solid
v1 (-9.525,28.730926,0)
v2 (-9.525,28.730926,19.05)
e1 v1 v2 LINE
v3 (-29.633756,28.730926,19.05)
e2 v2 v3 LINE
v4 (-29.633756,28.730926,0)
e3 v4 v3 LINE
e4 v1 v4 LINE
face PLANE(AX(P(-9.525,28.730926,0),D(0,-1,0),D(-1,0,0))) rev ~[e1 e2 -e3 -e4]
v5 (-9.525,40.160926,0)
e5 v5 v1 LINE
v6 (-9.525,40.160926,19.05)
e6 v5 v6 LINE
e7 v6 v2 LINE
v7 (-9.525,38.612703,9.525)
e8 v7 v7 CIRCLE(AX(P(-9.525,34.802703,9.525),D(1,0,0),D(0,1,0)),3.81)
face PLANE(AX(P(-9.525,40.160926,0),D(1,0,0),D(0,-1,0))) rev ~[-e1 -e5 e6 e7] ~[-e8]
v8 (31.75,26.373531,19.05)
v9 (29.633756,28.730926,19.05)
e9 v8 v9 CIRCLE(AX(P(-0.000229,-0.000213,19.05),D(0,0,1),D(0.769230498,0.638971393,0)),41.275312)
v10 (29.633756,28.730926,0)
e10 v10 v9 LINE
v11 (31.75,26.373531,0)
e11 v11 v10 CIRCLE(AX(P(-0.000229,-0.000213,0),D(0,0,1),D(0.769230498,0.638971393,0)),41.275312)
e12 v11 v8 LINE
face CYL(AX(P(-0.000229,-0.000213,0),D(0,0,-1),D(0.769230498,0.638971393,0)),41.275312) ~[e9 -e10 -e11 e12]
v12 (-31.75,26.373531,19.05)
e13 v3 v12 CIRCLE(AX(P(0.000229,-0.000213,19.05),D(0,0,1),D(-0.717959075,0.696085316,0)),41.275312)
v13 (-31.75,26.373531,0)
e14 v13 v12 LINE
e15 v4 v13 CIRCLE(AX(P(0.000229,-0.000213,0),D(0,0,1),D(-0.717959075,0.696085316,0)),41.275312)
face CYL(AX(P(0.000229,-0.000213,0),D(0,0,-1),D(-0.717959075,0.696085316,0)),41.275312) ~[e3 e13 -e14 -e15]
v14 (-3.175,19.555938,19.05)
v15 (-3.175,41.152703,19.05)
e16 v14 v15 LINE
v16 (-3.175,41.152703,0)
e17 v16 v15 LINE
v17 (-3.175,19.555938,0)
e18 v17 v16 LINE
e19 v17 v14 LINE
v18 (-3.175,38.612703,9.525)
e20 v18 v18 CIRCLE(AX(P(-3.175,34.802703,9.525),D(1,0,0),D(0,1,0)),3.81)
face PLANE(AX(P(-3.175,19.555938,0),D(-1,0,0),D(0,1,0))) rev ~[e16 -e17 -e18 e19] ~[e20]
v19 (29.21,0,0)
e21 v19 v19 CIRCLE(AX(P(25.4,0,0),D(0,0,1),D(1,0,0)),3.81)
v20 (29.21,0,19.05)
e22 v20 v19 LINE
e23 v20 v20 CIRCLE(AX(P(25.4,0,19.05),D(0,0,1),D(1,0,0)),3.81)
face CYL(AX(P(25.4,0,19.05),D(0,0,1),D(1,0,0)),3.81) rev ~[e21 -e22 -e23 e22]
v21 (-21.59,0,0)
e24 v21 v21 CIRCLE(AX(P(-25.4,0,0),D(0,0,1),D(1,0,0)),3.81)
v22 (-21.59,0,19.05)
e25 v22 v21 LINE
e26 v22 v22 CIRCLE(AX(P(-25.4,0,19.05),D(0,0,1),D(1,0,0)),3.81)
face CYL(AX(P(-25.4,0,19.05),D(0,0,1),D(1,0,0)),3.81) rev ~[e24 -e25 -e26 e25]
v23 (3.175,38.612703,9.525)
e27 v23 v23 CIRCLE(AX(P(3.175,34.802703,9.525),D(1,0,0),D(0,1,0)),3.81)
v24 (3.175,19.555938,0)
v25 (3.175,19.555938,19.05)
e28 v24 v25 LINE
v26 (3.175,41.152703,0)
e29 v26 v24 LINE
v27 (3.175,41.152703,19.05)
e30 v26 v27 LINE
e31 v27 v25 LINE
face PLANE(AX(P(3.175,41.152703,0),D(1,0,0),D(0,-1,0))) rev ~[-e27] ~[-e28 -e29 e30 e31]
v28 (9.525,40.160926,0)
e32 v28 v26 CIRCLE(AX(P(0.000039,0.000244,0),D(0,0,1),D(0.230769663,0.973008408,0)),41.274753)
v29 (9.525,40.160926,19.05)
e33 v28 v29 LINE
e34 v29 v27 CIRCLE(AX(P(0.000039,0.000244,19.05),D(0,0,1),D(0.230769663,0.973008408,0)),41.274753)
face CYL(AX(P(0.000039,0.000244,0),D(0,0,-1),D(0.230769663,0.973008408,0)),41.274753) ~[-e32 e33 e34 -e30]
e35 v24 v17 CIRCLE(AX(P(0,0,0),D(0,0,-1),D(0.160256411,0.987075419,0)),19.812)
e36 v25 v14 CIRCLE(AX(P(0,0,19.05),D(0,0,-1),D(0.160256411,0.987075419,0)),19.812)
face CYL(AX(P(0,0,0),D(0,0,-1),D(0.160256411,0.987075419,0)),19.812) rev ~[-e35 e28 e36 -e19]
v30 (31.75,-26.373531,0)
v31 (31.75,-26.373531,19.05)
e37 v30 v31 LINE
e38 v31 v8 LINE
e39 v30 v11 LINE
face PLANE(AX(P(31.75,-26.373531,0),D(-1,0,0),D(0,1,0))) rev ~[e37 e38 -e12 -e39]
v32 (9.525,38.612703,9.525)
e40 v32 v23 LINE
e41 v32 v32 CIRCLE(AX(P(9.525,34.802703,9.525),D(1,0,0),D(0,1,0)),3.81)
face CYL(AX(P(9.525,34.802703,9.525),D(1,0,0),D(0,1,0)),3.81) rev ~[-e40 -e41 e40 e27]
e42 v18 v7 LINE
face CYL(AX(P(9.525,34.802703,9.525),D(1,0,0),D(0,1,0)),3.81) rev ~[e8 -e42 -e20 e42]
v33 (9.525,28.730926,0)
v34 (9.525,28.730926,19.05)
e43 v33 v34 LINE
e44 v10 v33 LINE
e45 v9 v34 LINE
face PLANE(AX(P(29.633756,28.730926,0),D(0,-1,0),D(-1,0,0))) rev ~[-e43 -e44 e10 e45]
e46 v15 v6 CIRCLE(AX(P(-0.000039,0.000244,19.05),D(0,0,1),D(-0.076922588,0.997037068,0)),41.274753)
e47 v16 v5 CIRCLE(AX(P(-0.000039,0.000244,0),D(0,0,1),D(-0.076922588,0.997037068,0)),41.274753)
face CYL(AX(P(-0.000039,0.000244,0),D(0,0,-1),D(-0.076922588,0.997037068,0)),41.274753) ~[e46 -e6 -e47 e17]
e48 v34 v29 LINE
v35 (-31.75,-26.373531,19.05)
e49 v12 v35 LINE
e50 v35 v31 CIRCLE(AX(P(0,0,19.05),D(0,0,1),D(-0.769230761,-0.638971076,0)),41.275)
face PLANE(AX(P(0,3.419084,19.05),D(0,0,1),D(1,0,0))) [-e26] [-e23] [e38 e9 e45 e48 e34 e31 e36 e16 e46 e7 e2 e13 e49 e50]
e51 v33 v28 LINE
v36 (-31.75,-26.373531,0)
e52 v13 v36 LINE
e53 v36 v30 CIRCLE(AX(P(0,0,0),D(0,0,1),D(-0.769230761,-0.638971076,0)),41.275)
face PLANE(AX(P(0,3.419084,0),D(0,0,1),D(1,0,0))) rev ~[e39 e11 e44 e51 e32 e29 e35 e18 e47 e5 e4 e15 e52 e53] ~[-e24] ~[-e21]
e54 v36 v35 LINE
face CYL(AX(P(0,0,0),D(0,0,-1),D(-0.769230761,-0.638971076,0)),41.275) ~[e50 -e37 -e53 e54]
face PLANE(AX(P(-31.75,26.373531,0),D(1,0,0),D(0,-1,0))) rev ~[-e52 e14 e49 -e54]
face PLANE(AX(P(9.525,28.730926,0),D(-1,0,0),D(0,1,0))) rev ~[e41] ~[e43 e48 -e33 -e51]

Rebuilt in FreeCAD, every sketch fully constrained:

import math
import FreeCAD as App
import Part
import Sketcher
from FreeCAD import Vector
Q = App.Units.Quantity

doc = App.newDocument("Part")
body = doc.addObject("PartDesign::Body", "Body")

# Sketch on XY plane
sketch1 = doc.addObject("Sketcher::SketchObject", "Sketch")
body.addObject(sketch1)
sketch1.AttachmentSupport = (doc.XY_Plane, [""])
sketch1.MapMode = "FlatFace"
sketch1.addGeometry([
    Part.LineSegment(Vector(-3.175, 19.555938, 0), Vector(-3.175, 41.152703, 0)),  # 0
    Part.ArcOfCircle(Part.Circle(Vector(-0.000039, 0.000244, 0), Vector(0, 0, 1), 41.274753), math.radians(94.411698), math.radians(103.342389)),  # 1
    Part.LineSegment(Vector(-9.525, 40.160926, 0), Vector(-9.525, 28.730926, 0)),  # 2
    Part.LineSegment(Vector(-9.525, 28.730926, 0), Vector(-29.633756, 28.730926, 0)),  # 3
    Part.ArcOfCircle(Part.Circle(Vector(0.000229, -0.000213, 0), Vector(0, 0, 1), 41.275312), math.radians(135.886234), math.radians(140.284838)),  # 4
    Part.LineSegment(Vector(-31.75, 26.373531, 0), Vector(-31.75, -26.373531, 0)),  # 5
    Part.ArcOfCircle(Part.Circle(Vector(0, 0, 0), Vector(0, 0, 1), 41.275), math.radians(-140.284862), math.radians(-39.715138)),  # 6
    Part.LineSegment(Vector(31.75, -26.373531, 0), Vector(31.75, 26.373531, 0)),  # 7
    Part.ArcOfCircle(Part.Circle(Vector(-0.000229, -0.000213, 0), Vector(0, 0, 1), 41.275312), math.radians(39.715162), math.radians(44.113766)),  # 8
    Part.LineSegment(Vector(29.633756, 28.730926, 0), Vector(9.525, 28.730926, 0)),  # 9
    Part.LineSegment(Vector(9.525, 28.730926, 0), Vector(9.525, 40.160926, 0)),  # 10
    Part.ArcOfCircle(Part.Circle(Vector(0.000039, 0.000244, 0), Vector(0, 0, 1), 41.274753), math.radians(76.657611), math.radians(85.588302)),  # 11
    Part.LineSegment(Vector(3.175, 41.152703, 0), Vector(3.175, 19.555938, 0)),  # 12
    Part.ArcOfCircle(Part.Circle(Vector(0, 0, 0), Vector(0, 0, 1), 19.812), math.radians(99.22178), math.radians(440.77822)),  # 13
], False)
sketch1.addConstraint([
    Sketcher.Constraint("Coincident", 0, 2, 1, 1),
    Sketcher.Constraint("Coincident", 1, 2, 2, 1),
    Sketcher.Constraint("Coincident", 2, 2, 3, 1),
    Sketcher.Constraint("Coincident", 3, 2, 4, 1),
    Sketcher.Constraint("Coincident", 4, 2, 5, 1),
    Sketcher.Constraint("Coincident", 5, 2, 6, 1),
    Sketcher.Constraint("Coincident", 6, 2, 7, 1),
    Sketcher.Constraint("Coincident", 7, 2, 8, 1),
    Sketcher.Constraint("Coincident", 8, 2, 9, 1),
    Sketcher.Constraint("Coincident", 9, 2, 10, 1),
    Sketcher.Constraint("Coincident", 10, 2, 11, 1),
    Sketcher.Constraint("Coincident", 11, 2, 12, 1),
    Sketcher.Constraint("Coincident", 12, 2, 13, 2),
    Sketcher.Constraint("Coincident", 13, 1, 0, 1),
    Sketcher.Constraint("Vertical", 0),
    Sketcher.Constraint("Vertical", 2),
    Sketcher.Constraint("Horizontal", 3),
    Sketcher.Constraint("Vertical", 5),
    Sketcher.Constraint("Vertical", 7),
    Sketcher.Constraint("Horizontal", 9),
    Sketcher.Constraint("Vertical", 10),
    Sketcher.Constraint("Vertical", 12),
    Sketcher.Constraint("Coincident", 6, 3, -1, 1),
    Sketcher.Constraint("Coincident", 13, 3, -1, 1),
    Sketcher.Constraint("Equal", 4, 8),
    Sketcher.Constraint("Equal", 1, 11),
    Sketcher.Constraint("Symmetric", 4, 2, 6, 2, -1, 1),
    Sketcher.Constraint("Symmetric", 4, 3, 8, 3, -2),
    Sketcher.Constraint("Symmetric", 1, 3, 11, 3, -2),
    Sketcher.Constraint("Symmetric", 2, 2, 9, 2, -2),
    Sketcher.Constraint("Horizontal", 0, 2, 11, 2),
    Sketcher.Constraint("Radius", 13, Q("0.78 in")),
    Sketcher.Constraint("Radius", 6, Q("1.625 in")),
    Sketcher.Constraint("DistanceY", 2, 2, 2, 1, Q("0.45 in")),
    Sketcher.Constraint("DistanceX", 0, 2, 9, 2, Q("0.5 in")),
    Sketcher.Constraint("DistanceX", 4, 2, -1, 1, Q("1.25 in")),
    Sketcher.Constraint("DistanceX", 1, 2, 0, 2, Q("0.25 in")),
    Sketcher.Constraint("Radius", 1, 41.274753),
    Sketcher.Constraint("Radius", 4, 41.275312),
    Sketcher.Constraint("DistanceX", 3, 2, 3, 1, 20.108756),
    Sketcher.Constraint("DistanceY", 0, 1, 0, 2, 21.596765),
    Sketcher.Constraint("DistanceX", -1, 1, 4, 3, 0.000229),
])
pad1 = doc.addObject("PartDesign::Pad", "Pad")
body.addObject(pad1)
pad1.Profile = sketch1
pad1.Length = Q("0.75 in")

# Sketch on XY plane
sketch2 = doc.addObject("Sketcher::SketchObject", "Sketch001")
body.addObject(sketch2)
sketch2.AttachmentSupport = (doc.XY_Plane, [""])
sketch2.MapMode = "FlatFace"
sketch2.AttachmentOffset = App.Placement(Vector(0, 0, 0.75 * 25.4), App.Rotation())
sketch2.addGeometry([
    Part.Circle(Vector(25.4, 0, 0), Vector(0, 0, 1), 3.8),
    Part.Circle(Vector(-25.4, 0, 0), Vector(0, 0, 1), 3.8),
], False)
sketch2.addConstraint([
    Sketcher.Constraint("Equal", 0, 1),
    Sketcher.Constraint("Symmetric", 0, 3, 1, 3, -1, 1),
    Sketcher.Constraint("PointOnObject", 0, 3, -1),
    Sketcher.Constraint("Diameter", 0, Q("0.3 in")),
    Sketcher.Constraint("DistanceX", -1, 1, 0, 3, Q("1 in")),
])
pocket1 = doc.addObject("PartDesign::Pocket", "Pocket")
body.addObject(pocket1)
pocket1.Profile = sketch2
pocket1.Length = Q("1 in")

# Sketch on YZ plane
sketch3 = doc.addObject("Sketcher::SketchObject", "Sketch002")
body.addObject(sketch3)
sketch3.AttachmentSupport = (doc.YZ_Plane, [""])
sketch3.MapMode = "FlatFace"
sketch3.AttachmentOffset = App.Placement(Vector(0, 0, 0.375 * 25.4), App.Rotation())
sketch3.addGeometry(Part.Circle(Vector(34.8, 9.5, 0), Vector(0, 0, 1), 3.8), False)
sketch3.addConstraint([
    Sketcher.Constraint("Diameter", 0, Q("0.3 in")),
    Sketcher.Constraint("DistanceY", -1, 1, 0, 3, Q("0.375 in")),
    Sketcher.Constraint("DistanceX", -1, 1, 0, 3, 34.802703),
])
pocket2 = doc.addObject("PartDesign::Pocket", "Pocket001")
body.addObject(pocket2)
pocket2.Profile = sketch3
pocket2.Length = Q("1 in")

doc.recompute()
